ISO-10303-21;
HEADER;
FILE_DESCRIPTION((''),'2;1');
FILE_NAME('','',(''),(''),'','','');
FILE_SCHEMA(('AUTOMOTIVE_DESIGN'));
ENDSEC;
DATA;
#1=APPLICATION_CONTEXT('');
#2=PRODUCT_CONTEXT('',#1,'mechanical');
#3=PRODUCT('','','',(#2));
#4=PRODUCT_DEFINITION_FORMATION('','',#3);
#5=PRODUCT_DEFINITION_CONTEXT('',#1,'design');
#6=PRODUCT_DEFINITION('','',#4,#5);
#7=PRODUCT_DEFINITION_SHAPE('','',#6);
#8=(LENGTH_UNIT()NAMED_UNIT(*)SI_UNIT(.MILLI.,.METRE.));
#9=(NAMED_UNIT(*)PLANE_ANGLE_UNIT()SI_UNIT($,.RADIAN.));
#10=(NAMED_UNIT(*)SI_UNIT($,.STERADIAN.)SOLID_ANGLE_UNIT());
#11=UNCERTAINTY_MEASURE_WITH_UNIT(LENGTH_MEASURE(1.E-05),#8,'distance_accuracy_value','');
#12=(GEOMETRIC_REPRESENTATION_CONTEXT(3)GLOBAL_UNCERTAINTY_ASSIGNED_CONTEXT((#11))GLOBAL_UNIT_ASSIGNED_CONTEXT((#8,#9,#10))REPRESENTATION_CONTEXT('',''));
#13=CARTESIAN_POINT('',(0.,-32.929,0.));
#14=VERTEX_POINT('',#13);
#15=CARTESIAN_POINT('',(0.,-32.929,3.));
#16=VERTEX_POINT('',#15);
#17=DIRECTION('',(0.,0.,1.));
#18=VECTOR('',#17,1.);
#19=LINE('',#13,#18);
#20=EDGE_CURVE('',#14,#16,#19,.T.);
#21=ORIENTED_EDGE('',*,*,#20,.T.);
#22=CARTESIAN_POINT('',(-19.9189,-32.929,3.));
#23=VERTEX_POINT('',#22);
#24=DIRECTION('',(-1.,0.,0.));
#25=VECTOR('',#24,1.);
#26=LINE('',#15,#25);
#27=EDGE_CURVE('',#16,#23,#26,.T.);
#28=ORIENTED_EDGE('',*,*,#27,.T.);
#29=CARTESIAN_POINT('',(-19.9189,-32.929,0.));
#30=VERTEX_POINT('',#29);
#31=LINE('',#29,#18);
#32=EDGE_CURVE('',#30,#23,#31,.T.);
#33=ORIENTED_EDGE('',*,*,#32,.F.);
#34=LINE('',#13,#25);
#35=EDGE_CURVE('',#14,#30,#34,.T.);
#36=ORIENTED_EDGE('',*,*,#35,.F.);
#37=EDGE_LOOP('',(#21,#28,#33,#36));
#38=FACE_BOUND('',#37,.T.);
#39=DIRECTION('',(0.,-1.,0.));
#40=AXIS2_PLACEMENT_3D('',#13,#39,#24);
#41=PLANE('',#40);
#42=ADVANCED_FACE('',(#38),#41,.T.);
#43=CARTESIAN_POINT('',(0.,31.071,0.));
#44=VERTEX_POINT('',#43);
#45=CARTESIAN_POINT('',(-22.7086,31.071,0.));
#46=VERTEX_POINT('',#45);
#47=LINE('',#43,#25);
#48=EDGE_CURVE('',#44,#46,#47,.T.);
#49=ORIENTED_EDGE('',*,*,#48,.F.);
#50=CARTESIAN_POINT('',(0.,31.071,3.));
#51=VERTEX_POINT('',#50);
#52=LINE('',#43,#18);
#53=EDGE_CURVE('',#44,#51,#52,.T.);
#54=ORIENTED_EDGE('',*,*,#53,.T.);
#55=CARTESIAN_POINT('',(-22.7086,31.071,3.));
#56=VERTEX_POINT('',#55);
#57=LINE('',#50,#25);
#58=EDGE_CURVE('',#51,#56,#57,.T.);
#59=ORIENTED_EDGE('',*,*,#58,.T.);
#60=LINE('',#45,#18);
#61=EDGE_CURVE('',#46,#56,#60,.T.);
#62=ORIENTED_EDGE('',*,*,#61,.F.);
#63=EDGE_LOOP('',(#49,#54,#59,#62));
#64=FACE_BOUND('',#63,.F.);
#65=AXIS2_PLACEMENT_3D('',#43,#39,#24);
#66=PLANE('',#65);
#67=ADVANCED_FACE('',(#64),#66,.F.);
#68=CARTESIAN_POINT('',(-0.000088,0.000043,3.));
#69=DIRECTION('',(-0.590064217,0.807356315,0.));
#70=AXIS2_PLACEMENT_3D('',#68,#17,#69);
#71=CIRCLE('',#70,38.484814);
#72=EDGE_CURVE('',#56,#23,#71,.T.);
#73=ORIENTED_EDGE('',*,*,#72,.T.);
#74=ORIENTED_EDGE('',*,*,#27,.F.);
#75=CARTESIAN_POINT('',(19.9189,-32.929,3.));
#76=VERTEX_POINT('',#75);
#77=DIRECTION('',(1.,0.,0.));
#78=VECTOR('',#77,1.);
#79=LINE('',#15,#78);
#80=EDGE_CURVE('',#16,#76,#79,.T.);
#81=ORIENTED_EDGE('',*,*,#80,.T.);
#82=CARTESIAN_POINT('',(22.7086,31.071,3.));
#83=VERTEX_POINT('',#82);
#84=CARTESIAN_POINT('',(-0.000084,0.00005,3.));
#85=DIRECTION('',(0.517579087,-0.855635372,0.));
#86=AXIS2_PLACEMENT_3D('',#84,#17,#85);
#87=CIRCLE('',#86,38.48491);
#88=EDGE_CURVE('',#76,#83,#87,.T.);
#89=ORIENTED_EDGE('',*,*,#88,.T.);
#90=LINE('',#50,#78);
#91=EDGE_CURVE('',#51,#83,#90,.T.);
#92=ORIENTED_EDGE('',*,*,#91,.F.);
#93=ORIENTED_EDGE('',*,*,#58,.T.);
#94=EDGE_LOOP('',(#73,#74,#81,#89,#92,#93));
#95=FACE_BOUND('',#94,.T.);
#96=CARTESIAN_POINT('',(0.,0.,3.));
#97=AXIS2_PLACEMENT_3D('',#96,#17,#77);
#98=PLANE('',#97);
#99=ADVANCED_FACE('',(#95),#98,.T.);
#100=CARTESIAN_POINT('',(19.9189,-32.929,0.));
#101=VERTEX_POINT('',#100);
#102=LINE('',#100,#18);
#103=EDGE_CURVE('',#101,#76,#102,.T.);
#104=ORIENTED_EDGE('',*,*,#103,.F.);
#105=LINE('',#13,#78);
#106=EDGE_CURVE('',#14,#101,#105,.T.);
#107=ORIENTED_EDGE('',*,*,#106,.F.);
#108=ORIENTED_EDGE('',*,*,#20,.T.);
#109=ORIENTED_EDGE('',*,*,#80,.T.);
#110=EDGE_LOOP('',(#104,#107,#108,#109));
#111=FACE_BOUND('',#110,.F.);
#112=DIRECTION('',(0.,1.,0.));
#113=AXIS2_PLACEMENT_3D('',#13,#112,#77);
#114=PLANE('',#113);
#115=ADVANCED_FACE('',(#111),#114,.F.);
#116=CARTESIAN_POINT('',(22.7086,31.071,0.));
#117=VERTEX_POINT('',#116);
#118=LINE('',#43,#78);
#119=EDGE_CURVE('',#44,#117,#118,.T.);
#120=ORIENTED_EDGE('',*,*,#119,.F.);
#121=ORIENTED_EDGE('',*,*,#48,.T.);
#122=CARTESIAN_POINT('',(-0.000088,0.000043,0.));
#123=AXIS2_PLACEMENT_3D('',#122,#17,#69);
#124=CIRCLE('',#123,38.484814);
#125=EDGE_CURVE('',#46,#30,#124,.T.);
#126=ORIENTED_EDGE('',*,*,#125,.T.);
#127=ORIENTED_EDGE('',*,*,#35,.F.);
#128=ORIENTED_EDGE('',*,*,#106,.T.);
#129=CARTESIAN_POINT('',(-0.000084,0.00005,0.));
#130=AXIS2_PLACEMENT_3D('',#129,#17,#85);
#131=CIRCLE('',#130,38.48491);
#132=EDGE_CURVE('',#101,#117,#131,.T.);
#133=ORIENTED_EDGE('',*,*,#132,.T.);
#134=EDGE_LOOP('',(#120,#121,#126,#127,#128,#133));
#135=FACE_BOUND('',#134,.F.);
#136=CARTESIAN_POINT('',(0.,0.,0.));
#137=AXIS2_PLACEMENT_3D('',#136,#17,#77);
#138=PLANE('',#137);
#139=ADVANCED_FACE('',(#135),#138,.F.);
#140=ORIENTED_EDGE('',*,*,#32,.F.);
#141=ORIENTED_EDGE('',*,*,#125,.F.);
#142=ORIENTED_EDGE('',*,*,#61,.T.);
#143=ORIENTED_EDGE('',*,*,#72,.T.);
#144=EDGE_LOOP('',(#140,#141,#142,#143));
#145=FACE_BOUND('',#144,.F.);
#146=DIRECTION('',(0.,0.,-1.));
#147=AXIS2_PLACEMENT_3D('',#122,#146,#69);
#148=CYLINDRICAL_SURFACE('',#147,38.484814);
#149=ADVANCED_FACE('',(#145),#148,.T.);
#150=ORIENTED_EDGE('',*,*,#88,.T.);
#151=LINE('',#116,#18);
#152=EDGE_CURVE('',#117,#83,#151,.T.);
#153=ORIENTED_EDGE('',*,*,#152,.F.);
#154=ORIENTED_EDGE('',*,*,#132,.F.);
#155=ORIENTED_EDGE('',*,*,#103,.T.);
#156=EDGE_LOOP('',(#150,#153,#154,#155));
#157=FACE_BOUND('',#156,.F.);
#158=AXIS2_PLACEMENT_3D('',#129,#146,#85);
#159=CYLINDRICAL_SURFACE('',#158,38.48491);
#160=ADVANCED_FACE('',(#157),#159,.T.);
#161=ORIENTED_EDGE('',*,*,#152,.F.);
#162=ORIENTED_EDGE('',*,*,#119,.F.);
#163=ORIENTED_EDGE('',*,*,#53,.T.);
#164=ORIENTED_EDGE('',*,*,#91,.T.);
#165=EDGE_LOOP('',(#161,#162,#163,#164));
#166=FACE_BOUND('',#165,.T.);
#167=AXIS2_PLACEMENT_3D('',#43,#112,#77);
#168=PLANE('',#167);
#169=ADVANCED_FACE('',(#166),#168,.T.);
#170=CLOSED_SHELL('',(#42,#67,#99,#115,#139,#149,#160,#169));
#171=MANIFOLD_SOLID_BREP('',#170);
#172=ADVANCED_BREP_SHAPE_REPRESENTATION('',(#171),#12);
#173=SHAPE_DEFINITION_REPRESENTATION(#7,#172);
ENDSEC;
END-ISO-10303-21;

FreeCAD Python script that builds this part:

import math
import FreeCAD as App
import Part
import Sketcher

doc = App.newDocument("Part")
body = doc.addObject("PartDesign::Body", "Body")

sketch1 = body.newObject("Sketcher::SketchObject", "Sketch")
sketch1.AttachmentSupport = (doc.getObject("XY_Plane"), [""])
sketch1.MapMode = "FlatFace"
sketch1.addGeometry([
    Part.LineSegment(App.Vector(23, 31, 0), App.Vector(-23, 31, 0)),
    Part.ArcOfCircle(Part.Circle(App.Vector(0, 0, 0), App.Vector(0, 0, 1), 38), math.radians(126), math.radians(239)),
    Part.LineSegment(App.Vector(-20, -33, 0), App.Vector(20, -33, 0)),
    Part.ArcOfCircle(Part.Circle(App.Vector(0, 0, 0), App.Vector(0, 0, 1), 38), math.radians(-59), math.radians(54)),
], False)
sketch1.addConstraint([
    Sketcher.Constraint("Coincident", 0, 2, 1, 1),
    Sketcher.Constraint("Coincident", 1, 2, 2, 1),
    Sketcher.Constraint("Coincident", 2, 2, 3, 1),
    Sketcher.Constraint("Coincident", 3, 2, 0, 1),
    Sketcher.Constraint("Horizontal", 0),
    Sketcher.Constraint("Horizontal", 2),
    Sketcher.Constraint("Coincident", 1, 3, -1, 1),
    Sketcher.Constraint("Coincident", 3, 3, -1, 1),
    Sketcher.Constraint("Equal", 1, 3),
    Sketcher.Constraint("DistanceY", 1, 2, 0, 2, 64.0),
    Sketcher.Constraint("Radius", 3, 38.485),
    Sketcher.Constraint("DistanceX", 0, 2, 0, 1, 45.4172),
])
pad1 = body.newObject("PartDesign::Pad", "Pad")
pad1.Profile = sketch1
pad1.Length = 3

doc.recompute()
